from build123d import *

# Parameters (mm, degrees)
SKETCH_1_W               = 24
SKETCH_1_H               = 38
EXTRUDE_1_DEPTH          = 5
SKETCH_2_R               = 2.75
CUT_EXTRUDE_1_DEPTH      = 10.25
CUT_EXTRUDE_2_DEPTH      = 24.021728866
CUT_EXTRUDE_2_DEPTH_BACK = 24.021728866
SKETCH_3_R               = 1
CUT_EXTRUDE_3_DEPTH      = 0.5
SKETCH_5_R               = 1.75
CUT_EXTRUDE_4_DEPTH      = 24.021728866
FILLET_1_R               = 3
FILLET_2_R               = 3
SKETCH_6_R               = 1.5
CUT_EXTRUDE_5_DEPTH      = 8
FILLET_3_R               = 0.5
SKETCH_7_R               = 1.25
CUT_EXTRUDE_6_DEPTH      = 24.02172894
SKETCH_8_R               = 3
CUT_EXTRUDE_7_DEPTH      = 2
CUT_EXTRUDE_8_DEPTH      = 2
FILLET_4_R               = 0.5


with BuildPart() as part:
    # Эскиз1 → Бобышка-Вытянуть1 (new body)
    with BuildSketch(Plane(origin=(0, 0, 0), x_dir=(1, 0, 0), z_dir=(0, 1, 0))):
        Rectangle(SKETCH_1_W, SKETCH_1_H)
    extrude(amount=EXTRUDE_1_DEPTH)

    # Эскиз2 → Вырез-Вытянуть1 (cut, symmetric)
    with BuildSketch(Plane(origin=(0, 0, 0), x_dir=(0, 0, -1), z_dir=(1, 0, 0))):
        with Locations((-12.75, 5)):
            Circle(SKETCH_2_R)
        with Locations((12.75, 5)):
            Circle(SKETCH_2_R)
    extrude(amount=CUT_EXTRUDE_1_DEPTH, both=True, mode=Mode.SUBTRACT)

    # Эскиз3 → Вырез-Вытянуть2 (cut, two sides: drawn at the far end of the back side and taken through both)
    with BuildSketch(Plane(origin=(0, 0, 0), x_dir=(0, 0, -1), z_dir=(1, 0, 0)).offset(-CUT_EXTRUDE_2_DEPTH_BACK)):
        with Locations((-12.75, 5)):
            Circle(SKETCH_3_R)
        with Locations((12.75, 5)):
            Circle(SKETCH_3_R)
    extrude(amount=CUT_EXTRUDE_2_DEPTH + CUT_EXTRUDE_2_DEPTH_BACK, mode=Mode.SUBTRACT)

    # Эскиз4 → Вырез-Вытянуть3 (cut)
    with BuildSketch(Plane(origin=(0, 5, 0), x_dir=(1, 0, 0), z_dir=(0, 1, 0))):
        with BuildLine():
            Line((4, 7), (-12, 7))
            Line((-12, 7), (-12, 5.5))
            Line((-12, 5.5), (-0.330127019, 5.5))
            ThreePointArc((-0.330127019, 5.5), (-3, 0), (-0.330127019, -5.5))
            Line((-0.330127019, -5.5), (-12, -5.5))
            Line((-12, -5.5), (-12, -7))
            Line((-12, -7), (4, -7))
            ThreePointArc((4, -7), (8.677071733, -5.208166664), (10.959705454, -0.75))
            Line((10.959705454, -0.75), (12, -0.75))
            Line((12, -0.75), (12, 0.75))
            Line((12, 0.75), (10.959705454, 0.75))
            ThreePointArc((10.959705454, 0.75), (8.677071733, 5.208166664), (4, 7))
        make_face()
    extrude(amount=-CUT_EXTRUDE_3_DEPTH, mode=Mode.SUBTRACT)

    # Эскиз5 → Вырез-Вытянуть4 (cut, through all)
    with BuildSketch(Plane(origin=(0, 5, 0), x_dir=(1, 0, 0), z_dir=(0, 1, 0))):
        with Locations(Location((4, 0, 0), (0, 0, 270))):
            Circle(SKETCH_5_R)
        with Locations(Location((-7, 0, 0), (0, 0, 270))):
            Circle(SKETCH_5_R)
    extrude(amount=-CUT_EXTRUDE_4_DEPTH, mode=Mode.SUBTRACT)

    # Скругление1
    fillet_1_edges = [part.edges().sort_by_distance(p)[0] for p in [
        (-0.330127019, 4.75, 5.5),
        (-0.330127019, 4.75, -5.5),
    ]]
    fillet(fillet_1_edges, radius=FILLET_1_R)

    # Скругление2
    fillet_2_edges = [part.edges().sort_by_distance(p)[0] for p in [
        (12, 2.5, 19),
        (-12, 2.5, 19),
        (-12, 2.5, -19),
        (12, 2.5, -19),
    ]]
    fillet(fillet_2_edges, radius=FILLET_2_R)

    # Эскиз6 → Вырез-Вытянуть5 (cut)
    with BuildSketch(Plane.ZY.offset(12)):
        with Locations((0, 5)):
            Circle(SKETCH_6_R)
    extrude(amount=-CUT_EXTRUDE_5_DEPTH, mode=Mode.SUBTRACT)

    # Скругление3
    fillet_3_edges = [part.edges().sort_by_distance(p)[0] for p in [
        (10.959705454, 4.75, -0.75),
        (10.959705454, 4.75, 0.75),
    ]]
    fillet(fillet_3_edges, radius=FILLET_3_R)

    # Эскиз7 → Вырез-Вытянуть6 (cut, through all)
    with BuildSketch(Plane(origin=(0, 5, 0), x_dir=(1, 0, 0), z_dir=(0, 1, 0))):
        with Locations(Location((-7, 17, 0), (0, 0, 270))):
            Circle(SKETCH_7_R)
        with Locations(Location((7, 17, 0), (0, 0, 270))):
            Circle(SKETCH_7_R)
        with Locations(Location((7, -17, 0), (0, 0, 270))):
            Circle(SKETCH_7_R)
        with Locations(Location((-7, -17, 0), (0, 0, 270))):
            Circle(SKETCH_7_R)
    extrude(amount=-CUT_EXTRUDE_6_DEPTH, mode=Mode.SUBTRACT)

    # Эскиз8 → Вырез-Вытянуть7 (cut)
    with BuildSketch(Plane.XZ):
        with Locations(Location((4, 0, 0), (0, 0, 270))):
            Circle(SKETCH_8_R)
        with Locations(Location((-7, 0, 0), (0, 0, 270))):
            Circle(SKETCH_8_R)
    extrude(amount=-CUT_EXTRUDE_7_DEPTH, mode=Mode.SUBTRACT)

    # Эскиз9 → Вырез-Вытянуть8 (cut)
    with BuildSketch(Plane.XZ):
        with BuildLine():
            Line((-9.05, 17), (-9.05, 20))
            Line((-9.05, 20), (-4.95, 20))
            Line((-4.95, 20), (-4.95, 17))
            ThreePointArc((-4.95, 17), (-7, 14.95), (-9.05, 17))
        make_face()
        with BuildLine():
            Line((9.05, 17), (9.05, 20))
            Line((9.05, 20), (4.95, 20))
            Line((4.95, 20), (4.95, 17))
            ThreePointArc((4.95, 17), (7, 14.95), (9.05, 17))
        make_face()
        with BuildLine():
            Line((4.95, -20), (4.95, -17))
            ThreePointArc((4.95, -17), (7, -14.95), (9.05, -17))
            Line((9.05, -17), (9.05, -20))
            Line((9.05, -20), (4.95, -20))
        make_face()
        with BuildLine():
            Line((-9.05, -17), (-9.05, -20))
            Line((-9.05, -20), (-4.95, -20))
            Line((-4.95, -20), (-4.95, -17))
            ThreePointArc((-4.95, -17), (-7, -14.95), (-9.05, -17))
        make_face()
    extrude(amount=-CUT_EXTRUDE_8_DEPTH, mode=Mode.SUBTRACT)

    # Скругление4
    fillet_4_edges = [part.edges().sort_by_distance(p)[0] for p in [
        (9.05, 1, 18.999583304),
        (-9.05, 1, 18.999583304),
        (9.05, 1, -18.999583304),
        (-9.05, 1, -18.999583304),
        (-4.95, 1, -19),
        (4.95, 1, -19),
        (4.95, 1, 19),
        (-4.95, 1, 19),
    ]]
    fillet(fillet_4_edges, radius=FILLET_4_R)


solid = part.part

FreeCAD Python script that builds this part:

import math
import FreeCAD as App
import Part
import Sketcher
from FreeCAD import Vector


def edges_at(feature, points):
    """Names of the edges that pass closest to the given points."""
    edges = feature.Shape.Edges
    near = lambda p: min(range(len(edges)), key=lambda i: edges[i].distToShape(Part.Vertex(*p))[0])
    return sorted({f"Edge{near(p) + 1}" for p in points})


def add_polygon(sketch, points):
    """Adds a closed chain of lines whose ends are joined by coincident constraints."""
    first, n = sketch.GeometryCount, len(points)
    for a, b in zip(points, points[1:] + points[:1]):
        sketch.addGeometry(Part.LineSegment(App.Vector(*a, 0), App.Vector(*b, 0)), False)
    for i in range(n):
        sketch.addConstraint(Sketcher.Constraint("Coincident", first + i, 2, first + (i + 1) % n, 1))

doc = App.newDocument("Part")
params = doc.addObject("Spreadsheet::Sheet", "Params")
for row, (alias, value) in enumerate([
    ("sketch1_width", "24 mm"),
    ("sketch1_height", "38 mm"),
    ("pad1_length", "5 mm"),
    ("sketch2_diameter", "5.5 mm"),
    ("pocket1_length", "20.5 mm"),
    ("sketch3_diameter", "2 mm"),
    ("sketch4_radius", "7 mm"),
    ("sketch4_width", "16 mm"),
    ("sketch4_height", "1.5 mm"),
    ("pocket3_length", "0.5 mm"),
    ("sketch5_diameter", "3.5 mm"),
    ("fillet_radius", "3 mm"),
    ("fillet2_radius", "3 mm"),
    ("sketch6_diameter", "3 mm"),
    ("pocket5_length", "8 mm"),
    ("fillet3_radius", "0.5 mm"),
    ("sketch7_diameter", "2.5 mm"),
    ("sketch8_diameter", "6 mm"),
    ("pocket7_length", "2 mm"),
    ("sketch9_height", "3 mm"),
    ("sketch9_radius", "2.05 mm"),
    ("pocket8_length", "2 mm"),
    ("fillet4_radius", "0.5 mm"),
], start=1):
    params.set(f"A{row}", alias)
    params.set(f"B{row}", "=" + value)
    params.setAlias(f"B{row}", alias)

body = doc.addObject("PartDesign::Body", "Body")

# Sketch on XZ plane
sketch1 = body.newObject("Sketcher::SketchObject", "Sketch")
sketch1.AttachmentSupport = (doc.getObject("XZ_Plane"), [""])
sketch1.MapMode = "FlatFace"
add_polygon(sketch1, [(-12, -19), (-12, 19), (12, 19), (12, -19)])  # lines 0-3
sketch1.addConstraint([
    Sketcher.Constraint("Vertical", 0),
    Sketcher.Constraint("Horizontal", 1),
    Sketcher.Constraint("Vertical", 2),
    Sketcher.Constraint("Horizontal", 3),
    Sketcher.Constraint("Symmetric", 0, 2, 2, 2, -1, 1),
    Sketcher.Constraint("DistanceX", 1, 1, 1, 2, 24.0),
    Sketcher.Constraint("DistanceY", 0, 1, 0, 2, 38.0),
])
sketch1.setExpression("Constraints[9]", "Params.sketch1_width")
sketch1.setExpression("Constraints[10]", "Params.sketch1_height")
pad1 = body.newObject("PartDesign::Pad", "Pad")
pad1.Profile = sketch1
pad1.setExpression("Length", "Params.pad1_length")
pad1.Reversed = True

# Sketch on YZ plane
sketch2 = body.newObject("Sketcher::SketchObject", "Sketch001")
sketch2.AttachmentSupport = (doc.getObject("YZ_Plane"), [""])
sketch2.MapMode = "FlatFace"
sketch2.addGeometry([
    Part.Circle(Vector(5, 12.8, 0), Vector(0, 0, 1), 2.8),
    Part.Circle(Vector(5, -12.8, 0), Vector(0, 0, 1), 2.8),
], False)
sketch2.addConstraint([
    Sketcher.Constraint("Equal", 0, 1),
    Sketcher.Constraint("Symmetric", 0, 3, 1, 3, -1),
    Sketcher.Constraint("Diameter", 0, 5.5),
    Sketcher.Constraint("DistanceX", -1, 1, 0, 3, 5.0),
    Sketcher.Constraint("DistanceY", 1, 3, 0, 3, 25.5),
])
sketch2.setExpression("Constraints[2]", "Params.sketch2_diameter")
pocket1 = body.newObject("PartDesign::Pocket", "Pocket")
pocket1.Profile = sketch2
pocket1.setExpression("Length", "Params.pocket1_length")
pocket1.Midplane = True

# Sketch on YZ plane
sketch3 = body.newObject("Sketcher::SketchObject", "Sketch002")
sketch3.AttachmentSupport = (doc.getObject("YZ_Plane"), [""])
sketch3.MapMode = "FlatFace"
sketch3.addGeometry([
    Part.Circle(Vector(5, 12.8, 0), Vector(0, 0, 1), 1),
    Part.Circle(Vector(5, -12.8, 0), Vector(0, 0, 1), 1),
], False)
sketch3.addConstraint([
    Sketcher.Constraint("Equal", 0, 1),
    Sketcher.Constraint("Symmetric", 0, 3, 1, 3, -1),
    Sketcher.Constraint("Diameter", 0, 2.0),
    Sketcher.Constraint("DistanceX", -1, 1, 0, 3, 5.0),
    Sketcher.Constraint("DistanceY", 1, 3, 0, 3, 25.5),
])
sketch3.setExpression("Constraints[2]", "Params.sketch3_diameter")
pocket2 = body.newObject("PartDesign::Pocket", "Pocket001")
pocket2.Profile = sketch3
pocket2.Type = "ThroughAll"
pocket2.Midplane = True

# Sketch on XZ plane
sketch4 = body.newObject("Sketcher::SketchObject", "Sketch003")
sketch4.AttachmentSupport = (doc.getObject("XZ_Plane"), [""])
sketch4.MapMode = "FlatFace"
sketch4.AttachmentOffset = App.Placement(Vector(0, 0, -5), App.Rotation())
sketch4.addGeometry([
    Part.LineSegment(Vector(4, -7, 0), Vector(-12, -7, 0)),  # 0
    Part.LineSegment(Vector(-12, -7, 0), Vector(-12, -5.5, 0)),  # 1
    Part.LineSegment(Vector(-12, -5.5, 0), Vector(-0.3, -5.5, 0)),  # 2
    Part.ArcOfCircle(Part.Circle(Vector(4, 0, 0), Vector(0, 0, 1), 7), math.radians(128), math.radians(232)),  # 3
    Part.LineSegment(Vector(-0.3, 5.5, 0), Vector(-12, 5.5, 0)),  # 4
    Part.LineSegment(Vector(-12, 5.5, 0), Vector(-12, 7, 0)),  # 5
    Part.LineSegment(Vector(-12, 7, 0), Vector(4, 7, 0)),  # 6
    Part.ArcOfCircle(Part.Circle(Vector(4, 0, 0), Vector(0, 0, 1), 7), math.radians(6), math.radians(90)),  # 7
    Part.LineSegment(Vector(11, 0.8, 0), Vector(12, 0.8, 0)),  # 8
    Part.LineSegment(Vector(12, 0.8, 0), Vector(12, -0.8, 0)),  # 9
    Part.LineSegment(Vector(12, -0.8, 0), Vector(11, -0.8, 0)),  # 10
    Part.ArcOfCircle(Part.Circle(Vector(4, 0, 0), Vector(0, 0, 1), 7), math.radians(-90), math.radians(-6)),  # 11
], False)
sketch4.addConstraint([
    Sketcher.Constraint("Coincident", 0, 2, 1, 1),
    Sketcher.Constraint("Coincident", 1, 2, 2, 1),
    Sketcher.Constraint("Coincident", 2, 2, 3, 2),
    Sketcher.Constraint("Coincident", 3, 1, 4, 1),
    Sketcher.Constraint("Coincident", 4, 2, 5, 1),
    Sketcher.Constraint("Coincident", 5, 2, 6, 1),
    Sketcher.Constraint("Tangent", 6, 2, 7, 2),
    Sketcher.Constraint("Coincident", 7, 1, 8, 1),
    Sketcher.Constraint("Coincident", 8, 2, 9, 1),
    Sketcher.Constraint("Coincident", 9, 2, 10, 1),
    Sketcher.Constraint("Coincident", 10, 2, 11, 2),
    Sketcher.Constraint("Tangent", 11, 1, 0, 1),
    Sketcher.Constraint("Horizontal", 0),
    Sketcher.Constraint("Vertical", 1),
    Sketcher.Constraint("Horizontal", 2),
    Sketcher.Constraint("Horizontal", 4),
    Sketcher.Constraint("Vertical", 5),
    Sketcher.Constraint("Horizontal", 6),
    Sketcher.Constraint("Horizontal", 8),
    Sketcher.Constraint("Vertical", 9),
    Sketcher.Constraint("Horizontal", 10),
    Sketcher.Constraint("Coincident", 7, 3, 3, 3),
    Sketcher.Constraint("Coincident", 11, 3, 3, 3),
    Sketcher.Constraint("Equal", 3, 7),
    Sketcher.Constraint("Equal", 7, 11),
    Sketcher.Constraint("Symmetric", 2, 2, 3, 1, -1),
    Sketcher.Constraint("Vertical", 1, 2, 4, 2),
    Sketcher.Constraint("Vertical", 7, 1, 10, 2),
    Sketcher.Constraint("Equal", 5, 9),
    Sketcher.Constraint("Radius", 3, 7.0),
    Sketcher.Constraint("DistanceX", 0, 2, 0, 1, 16.0),
    Sketcher.Constraint("DistanceY", 1, 1, 1, 2, 1.5),
    Sketcher.Constraint("DistanceX", -1, 1, 3, 3, 4.0),
    Sketcher.Constraint("DistanceX", -1, 1, 8, 2, 12.0),
])
sketch4.setExpression("Constraints[29]", "Params.sketch4_radius")
sketch4.setExpression("Constraints[30]", "Params.sketch4_width")
sketch4.setExpression("Constraints[31]", "Params.sketch4_height")
pocket3 = body.newObject("PartDesign::Pocket", "Pocket002")
pocket3.Profile = sketch4
pocket3.setExpression("Length", "Params.pocket3_length")
pocket3.Reversed = True

# Sketch on XZ plane
sketch5 = body.newObject("Sketcher::SketchObject", "Sketch004")
sketch5.AttachmentSupport = (doc.getObject("XZ_Plane"), [""])
sketch5.MapMode = "FlatFace"
sketch5.AttachmentOffset = App.Placement(Vector(0, 0, -5), App.Rotation())
sketch5.addGeometry([
    Part.Circle(Vector(4, 0, 0), Vector(0, 0, 1), 1.8),
    Part.Circle(Vector(-7, 0, 0), Vector(0, 0, 1), 1.8),
], False)
sketch5.addConstraint([
    Sketcher.Constraint("Equal", 0, 1),
    Sketcher.Constraint("PointOnObject", 0, 3, -1),
    Sketcher.Constraint("PointOnObject", 1, 3, -1),
    Sketcher.Constraint("Diameter", 0, 3.5),
    Sketcher.Constraint("DistanceX", -1, 1, 0, 3, 4.0),
    Sketcher.Constraint("DistanceX", 1, 3, -1, 1, 7.0),
])
sketch5.setExpression("Constraints[3]", "Params.sketch5_diameter")
pocket4 = body.newObject("PartDesign::Pocket", "Pocket003")
pocket4.Profile = sketch5
pocket4.Type = "ThroughAll"
pocket4.Reversed = True
doc.recompute()

fillet = body.newObject("PartDesign::Fillet", "Fillet")
fillet.Base = (pocket4, edges_at(pocket4, [(-0.33, 4.75, 5.5), (-0.33, 4.75, -5.5)]))
fillet.setExpression("Radius", "Params.fillet_radius")
doc.recompute()

fillet2 = body.newObject("PartDesign::Fillet", "Fillet001")
fillet2.Base = (fillet, edges_at(fillet, [
    (12, 2.5, 19),
    (-12, 2.5, 19),
    (-12, 2.5, -19),
    (12, 2.5, -19),
]))
fillet2.setExpression("Radius", "Params.fillet2_radius")

# Sketch on YZ plane
sketch6 = body.newObject("Sketcher::SketchObject", "Sketch005")
sketch6.AttachmentSupport = (doc.getObject("YZ_Plane"), [""])
sketch6.MapMode = "FlatFace"
sketch6.AttachmentOffset = App.Placement(Vector(0, 0, -12), App.Rotation())
sketch6.addGeometry(Part.Circle(Vector(5, 0, 0), Vector(0, 0, 1), 1.5), False)
sketch6.addConstraint([
    Sketcher.Constraint("PointOnObject", 0, 3, -1),
    Sketcher.Constraint("Diameter", 0, 3.0),
    Sketcher.Constraint("DistanceX", -1, 1, 0, 3, 5.0),
])
sketch6.setExpression("Constraints[1]", "Params.sketch6_diameter")
pocket5 = body.newObject("PartDesign::Pocket", "Pocket004")
pocket5.Profile = sketch6
pocket5.setExpression("Length", "Params.pocket5_length")
pocket5.Reversed = True
doc.recompute()

fillet3 = body.newObject("PartDesign::Fillet", "Fillet002")
fillet3.Base = (pocket5, edges_at(pocket5, [(10.96, 4.75, -0.75), (10.96, 4.75, 0.75)]))
fillet3.setExpression("Radius", "Params.fillet3_radius")

# Sketch on XZ plane
sketch7 = body.newObject("Sketcher::SketchObject", "Sketch006")
sketch7.AttachmentSupport = (doc.getObject("XZ_Plane"), [""])
sketch7.MapMode = "FlatFace"
sketch7.AttachmentOffset = App.Placement(Vector(0, 0, -5), App.Rotation())
sketch7.addGeometry([
    Part.Circle(Vector(-7, -17, 0), Vector(0, 0, 1), 1.2),
    Part.Circle(Vector(7, -17, 0), Vector(0, 0, 1), 1.2),
    Part.Circle(Vector(7, 17, 0), Vector(0, 0, 1), 1.2),
    Part.Circle(Vector(-7, 17, 0), Vector(0, 0, 1), 1.2),
], False)
sketch7.addConstraint([
    Sketcher.Constraint("Equal", 0, 1),
    Sketcher.Constraint("Equal", 1, 2),
    Sketcher.Constraint("Equal", 2, 3),
    Sketcher.Constraint("Symmetric", 0, 3, 2, 3, -1, 1),
    Sketcher.Constraint("Symmetric", 1, 3, 3, 3, -1, 1),
    Sketcher.Constraint("Symmetric", 0, 3, 1, 3, -2),
    Sketcher.Constraint("Diameter", 0, 2.5),
    Sketcher.Constraint("DistanceX", 0, 3, -1, 1, 7.0),
    Sketcher.Constraint("DistanceY", 0, 3, -1, 1, 17.0),
])
sketch7.setExpression("Constraints[6]", "Params.sketch7_diameter")
pocket6 = body.newObject("PartDesign::Pocket", "Pocket005")
pocket6.Profile = sketch7
pocket6.Type = "ThroughAll"
pocket6.Reversed = True

# Sketch on XZ plane
sketch8 = body.newObject("Sketcher::SketchObject", "Sketch007")
sketch8.AttachmentSupport = (doc.getObject("XZ_Plane"), [""])
sketch8.MapMode = "FlatFace"
sketch8.addGeometry([
    Part.Circle(Vector(4, 0, 0), Vector(0, 0, 1), 3),
    Part.Circle(Vector(-7, 0, 0), Vector(0, 0, 1), 3),
], False)
sketch8.addConstraint([
    Sketcher.Constraint("Equal", 0, 1),
    Sketcher.Constraint("PointOnObject", 0, 3, -1),
    Sketcher.Constraint("PointOnObject", 1, 3, -1),
    Sketcher.Constraint("Diameter", 0, 6.0),
    Sketcher.Constraint("DistanceX", -1, 1, 0, 3, 4.0),
    Sketcher.Constraint("DistanceX", 1, 3, -1, 1, 7.0),
])
sketch8.setExpression("Constraints[3]", "Params.sketch8_diameter")
pocket7 = body.newObject("PartDesign::Pocket", "Pocket006")
pocket7.Profile = sketch8
pocket7.setExpression("Length", "Params.pocket7_length")

# Sketch on XZ plane
sketch9 = body.newObject("Sketcher::SketchObject", "Sketch008")
sketch9.AttachmentSupport = (doc.getObject("XZ_Plane"), [""])
sketch9.MapMode = "FlatFace"
sketch9.addGeometry([
    Part.LineSegment(Vector(-9.1, 20, 0), Vector(-9.1, 17, 0)),  # 0
    Part.ArcOfCircle(Part.Circle(Vector(-7, 17, 0), Vector(0, 0, 1), 2), math.radians(180), math.radians(360)),  # 1
    Part.LineSegment(Vector(-5, 17, 0), Vector(-5, 20, 0)),  # 2
    Part.LineSegment(Vector(-5, 20, 0), Vector(-9.1, 20, 0)),  # 3
    Part.LineSegment(Vector(9.1, 17, 0), Vector(9.1, 20, 0)),  # 4
    Part.LineSegment(Vector(9.1, 20, 0), Vector(5, 20, 0)),  # 5
    Part.LineSegment(Vector(5, 20, 0), Vector(5, 17, 0)),  # 6
    Part.ArcOfCircle(Part.Circle(Vector(7, 17, 0), Vector(0, 0, 1), 2), math.radians(180), math.radians(360)),  # 7
    Part.LineSegment(Vector(5, -17, 0), Vector(5, -20, 0)),  # 8
    Part.LineSegment(Vector(5, -20, 0), Vector(9.1, -20, 0)),  # 9
    Part.LineSegment(Vector(9.1, -20, 0), Vector(9.1, -17, 0)),  # 10
    Part.ArcOfCircle(Part.Circle(Vector(7, -17, 0), Vector(0, 0, 1), 2), math.radians(0), math.radians(180)),  # 11
    Part.LineSegment(Vector(-9.1, -17, 0), Vector(-9.1, -20, 0)),  # 12
    Part.LineSegment(Vector(-9.1, -20, 0), Vector(-5, -20, 0)),  # 13
    Part.LineSegment(Vector(-5, -20, 0), Vector(-5, -17, 0)),  # 14
    Part.ArcOfCircle(Part.Circle(Vector(-7, -17, 0), Vector(0, 0, 1), 2), math.radians(0), math.radians(180)),  # 15
], False)
sketch9.addConstraint([
    Sketcher.Constraint("Tangent", 0, 2, 1, 1),
    Sketcher.Constraint("Tangent", 1, 2, 2, 1),
    Sketcher.Constraint("Coincident", 2, 2, 3, 1),
    Sketcher.Constraint("Coincident", 3, 2, 0, 1),
    Sketcher.Constraint("Coincident", 4, 2, 5, 1),
    Sketcher.Constraint("Coincident", 5, 2, 6, 1),
    Sketcher.Constraint("Tangent", 6, 2, 7, 1),
    Sketcher.Constraint("Tangent", 7, 2, 4, 1),
    Sketcher.Constraint("Coincident", 8, 2, 9, 1),
    Sketcher.Constraint("Coincident", 9, 2, 10, 1),
    Sketcher.Constraint("Tangent", 10, 2, 11, 1),
    Sketcher.Constraint("Tangent", 11, 2, 8, 1),
    Sketcher.Constraint("Coincident", 12, 2, 13, 1),
    Sketcher.Constraint("Coincident", 13, 2, 14, 1),
    Sketcher.Constraint("Tangent", 14, 2, 15, 1),
    Sketcher.Constraint("Tangent", 15, 2, 12, 1),
    Sketcher.Constraint("Vertical", 0),
    Sketcher.Constraint("Vertical", 2),
    Sketcher.Constraint("Horizontal", 3),
    Sketcher.Constraint("Vertical", 4),
    Sketcher.Constraint("Horizontal", 5),
    Sketcher.Constraint("Vertical", 6),
    Sketcher.Constraint("Vertical", 8),
    Sketcher.Constraint("Horizontal", 9),
    Sketcher.Constraint("Vertical", 10),
    Sketcher.Constraint("Vertical", 12),
    Sketcher.Constraint("Horizontal", 13),
    Sketcher.Constraint("Vertical", 14),
    Sketcher.Constraint("Equal", 1, 7),
    Sketcher.Constraint("Equal", 7, 11),
    Sketcher.Constraint("Equal", 11, 15),
    Sketcher.Constraint("Symmetric", 1, 3, 11, 3, -1, 1),
    Sketcher.Constraint("Symmetric", 7, 3, 15, 3, -1, 1),
    Sketcher.Constraint("Symmetric", 1, 3, 7, 3, -2),
    Sketcher.Constraint("Horizontal", 3, 2, 4, 2),
    Sketcher.Constraint("Horizontal", 9, 2, 12, 2),
    Sketcher.Constraint("Equal", 6, 8),
    Sketcher.Constraint("DistanceY", 0, 2, 0, 1, 3.0),
    Sketcher.Constraint("Radius", 1, 2.05),
    Sketcher.Constraint("DistanceX", 1, 3, -1, 1, 7.0),
    Sketcher.Constraint("DistanceY", -1, 1, 1, 3, 17.0),
])
sketch9.setExpression("Constraints[37]", "Params.sketch9_height")
sketch9.setExpression("Constraints[38]", "Params.sketch9_radius")
pocket8 = body.newObject("PartDesign::Pocket", "Pocket007")
pocket8.Profile = sketch9
pocket8.setExpression("Length", "Params.pocket8_length")
doc.recompute()

fillet4 = body.newObject("PartDesign::Fillet", "Fillet003")
fillet4.Base = (pocket8, edges_at(pocket8, [
    (9.05, 1, 19),
    (-9.05, 1, 19),
    (9.05, 1, -19),
    (-9.05, 1, -19),
    (-4.95, 1, -19),
    (4.95, 1, -19),
    (4.95, 1, 19),
    (-4.95, 1, 19),
]))
fillet4.setExpression("Radius", "Params.fillet4_radius")

doc.recompute()
